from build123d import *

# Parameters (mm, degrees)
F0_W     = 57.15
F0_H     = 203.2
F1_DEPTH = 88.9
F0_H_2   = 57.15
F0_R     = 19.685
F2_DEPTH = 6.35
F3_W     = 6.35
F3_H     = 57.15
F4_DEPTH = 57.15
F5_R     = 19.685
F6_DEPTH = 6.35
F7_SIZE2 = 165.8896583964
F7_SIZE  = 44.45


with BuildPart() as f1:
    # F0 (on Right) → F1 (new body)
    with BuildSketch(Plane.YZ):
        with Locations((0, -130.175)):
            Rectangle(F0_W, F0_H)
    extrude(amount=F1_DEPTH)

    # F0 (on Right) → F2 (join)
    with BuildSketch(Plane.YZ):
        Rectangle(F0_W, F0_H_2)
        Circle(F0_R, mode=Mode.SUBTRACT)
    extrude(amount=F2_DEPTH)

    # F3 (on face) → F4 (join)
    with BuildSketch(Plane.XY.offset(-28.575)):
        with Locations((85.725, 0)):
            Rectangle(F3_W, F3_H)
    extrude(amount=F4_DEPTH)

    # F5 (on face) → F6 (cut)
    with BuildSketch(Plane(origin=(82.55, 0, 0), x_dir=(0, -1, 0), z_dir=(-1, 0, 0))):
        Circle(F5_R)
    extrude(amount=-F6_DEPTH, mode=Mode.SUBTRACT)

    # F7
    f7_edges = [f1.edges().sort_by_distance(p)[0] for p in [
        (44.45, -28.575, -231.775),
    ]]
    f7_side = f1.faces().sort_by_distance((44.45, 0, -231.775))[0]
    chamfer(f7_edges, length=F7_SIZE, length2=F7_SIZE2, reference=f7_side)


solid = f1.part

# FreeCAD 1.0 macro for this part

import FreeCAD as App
import Part
import Sketcher
Q = App.Units.Quantity


def edges_at(feature, points):
    """Names of the edges that pass closest to the given points."""
    edges = feature.Shape.Edges
    near = lambda p: min(range(len(edges)), key=lambda i: edges[i].distToShape(Part.Vertex(*p))[0])
    return sorted({f"Edge{near(p) + 1}" for p in points})


def add_polygon(sketch, points):
    """Adds a closed chain of lines whose ends are joined by coincident constraints."""
    first, n = sketch.GeometryCount, len(points)
    for a, b in zip(points, points[1:] + points[:1]):
        sketch.addGeometry(Part.LineSegment(App.Vector(*a, 0), App.Vector(*b, 0)), False)
    for i in range(n):
        sketch.addConstraint(Sketcher.Constraint("Coincident", first + i, 2, first + (i + 1) % n, 1))

doc = App.newDocument("Part")
body = doc.addObject("PartDesign::Body", "Body")

sketch1 = body.newObject("Sketcher::SketchObject", "Sketch")
sketch1.AttachmentSupport = (doc.getObject("YZ_Plane"), [""])
sketch1.MapMode = "FlatFace"
add_polygon(sketch1, [(-29, -29), (-29, -232), (29, -232), (29, -29)])
sketch1.addConstraint([
    Sketcher.Constraint("Vertical", 0),
    Sketcher.Constraint("Horizontal", 1),
    Sketcher.Constraint("Vertical", 2),
    Sketcher.Constraint("Horizontal", 3),
    Sketcher.Constraint("DistanceY", 0, 2, 0, 1, Q("8 in")),
    Sketcher.Constraint("DistanceX", 1, 1, 1, 2, Q("2.25 in")),
    Sketcher.Constraint("DistanceX", 0, 2, -1, 1, Q("1.125 in")),
    Sketcher.Constraint("DistanceY", 0, 2, -1, 1, Q("9.125 in")),
])
pad1 = body.newObject("PartDesign::Pad", "Pad")
pad1.Profile = sketch1
pad1.Length = Q("3.5 in")

sketch2 = body.newObject("Sketcher::SketchObject", "Sketch001")
sketch2.AttachmentSupport = (doc.getObject("YZ_Plane"), [""])
sketch2.MapMode = "FlatFace"
add_polygon(sketch2, [(-29, 29), (-29, -29), (29, -29), (29, 29)])
sketch2.addGeometry(Part.Circle(App.Vector(0, 0, 0), App.Vector(0, 0, 1), 20), False)
sketch2.addConstraint([
    Sketcher.Constraint("Vertical", 0),
    Sketcher.Constraint("Horizontal", 1),
    Sketcher.Constraint("Vertical", 2),
    Sketcher.Constraint("Horizontal", 3),
    Sketcher.Constraint("Coincident", 4, 3, -1, 1),
    Sketcher.Constraint("Symmetric", 0, 2, 2, 2, -1, 1),
    Sketcher.Constraint("Equal", 3, 0),
    Sketcher.Constraint("Diameter", 4, Q("1.55 in")),
    Sketcher.Constraint("DistanceX", 1, 1, 1, 2, Q("2.25 in")),
])
pad2 = body.newObject("PartDesign::Pad", "Pad001")
pad2.Profile = sketch2
pad2.Length = Q("0.25 in")

sketch3 = body.newObject("Sketcher::SketchObject", "Sketch002")
sketch3.AttachmentSupport = (doc.getObject("XY_Plane"), [""])
sketch3.MapMode = "FlatFace"
sketch3.AttachmentOffset = App.Placement(App.Vector(0, 0, -1.125 * 25.4), App.Rotation())
add_polygon(sketch3, [(83, 29), (83, -29), (89, -29), (89, 29)])
sketch3.addConstraint([
    Sketcher.Constraint("Vertical", 0),
    Sketcher.Constraint("Horizontal", 1),
    Sketcher.Constraint("Vertical", 2),
    Sketcher.Constraint("Horizontal", 3),
    Sketcher.Constraint("DistanceX", 1, 1, 1, 2, Q("0.25 in")),
    Sketcher.Constraint("DistanceY", 0, 2, 0, 1, Q("2.25 in")),
    Sketcher.Constraint("DistanceX", -1, 1, 1, 2, Q("3.5 in")),
    Sketcher.Constraint("DistanceY", 0, 2, -1, 1, Q("1.125 in")),
])
pad3 = body.newObject("PartDesign::Pad", "Pad002")
pad3.Profile = sketch3
pad3.Length = Q("2.25 in")

sketch4 = body.newObject("Sketcher::SketchObject", "Sketch003")
sketch4.AttachmentSupport = (doc.getObject("YZ_Plane"), [""])
sketch4.MapMode = "FlatFace"
sketch4.AttachmentOffset = App.Placement(App.Vector(0, 0, 3.25 * 25.4), App.Rotation())
sketch4.addGeometry(Part.Circle(App.Vector(0, 0, 0), App.Vector(0, 0, 1), 20), False)
sketch4.addConstraint([
    Sketcher.Constraint("Coincident", 0, 3, -1, 1),
    Sketcher.Constraint("Diameter", 0, Q("1.55 in")),
])
pocket1 = body.newObject("PartDesign::Pocket", "Pocket")
pocket1.Profile = sketch4
pocket1.Length = Q("0.25 in")
pocket1.Reversed = True
doc.recompute()

chamfer = body.newObject("PartDesign::Chamfer", "Chamfer")
chamfer.Base = (pocket1, edges_at(pocket1, [(44.45, -28.575, -231.775)]))
chamfer.ChamferType = "Two distances"
chamfer.Size = Q("1.75 in")
chamfer.Size2 = 165.889658

doc.recompute()
